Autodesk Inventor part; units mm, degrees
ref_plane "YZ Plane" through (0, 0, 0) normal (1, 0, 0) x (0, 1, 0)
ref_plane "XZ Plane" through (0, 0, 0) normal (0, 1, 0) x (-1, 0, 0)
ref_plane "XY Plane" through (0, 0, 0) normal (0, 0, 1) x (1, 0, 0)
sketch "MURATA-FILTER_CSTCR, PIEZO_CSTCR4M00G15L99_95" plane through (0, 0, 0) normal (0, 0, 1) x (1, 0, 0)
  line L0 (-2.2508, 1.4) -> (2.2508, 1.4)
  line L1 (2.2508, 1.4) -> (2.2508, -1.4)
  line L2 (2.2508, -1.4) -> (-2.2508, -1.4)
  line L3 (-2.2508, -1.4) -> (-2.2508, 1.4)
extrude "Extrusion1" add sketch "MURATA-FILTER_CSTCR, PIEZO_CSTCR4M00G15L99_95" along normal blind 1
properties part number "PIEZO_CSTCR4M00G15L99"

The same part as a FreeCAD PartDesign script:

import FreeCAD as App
import Part
import Sketcher

V = App.Vector
Q = App.Units.Quantity


def add_polygon(sketch, points):
    """Adds a closed chain of lines whose ends are joined by coincident constraints."""
    first, n = sketch.GeometryCount, len(points)
    for a, b in zip(points, points[1:] + points[:1]):
        sketch.addGeometry(Part.LineSegment(App.Vector(*a, 0), App.Vector(*b, 0)), False)
    for i in range(n):
        sketch.addConstraint(Sketcher.Constraint("Coincident", first + i, 2, first + (i + 1) % n, 1))

doc = App.newDocument("Part")
body = doc.addObject("PartDesign::Body", "Body")

sketch1 = body.newObject("Sketcher::SketchObject", "Sketch")
sketch1.AttachmentSupport = (doc.getObject("XY_Plane"), [""])
sketch1.MapMode = "FlatFace"
add_polygon(sketch1, [(2.3, 1.4), (-2.3, 1.4), (-2.3, -1.4), (2.3, -1.4)])
sketch1.addConstraint([
    Sketcher.Constraint("Horizontal", 0),
    Sketcher.Constraint("Vertical", 1),
    Sketcher.Constraint("Horizontal", 2),
    Sketcher.Constraint("Vertical", 3),
    Sketcher.Constraint("Symmetric", 0, 2, 2, 2, -1, 1),
    Sketcher.Constraint("DistanceY", 1, 2, 1, 1, Q("2.8 mm")),
    Sketcher.Constraint("DistanceX", 0, 2, 0, 1, Q("4.5016 mm")),
])
pad1 = body.newObject("PartDesign::Pad", "Pad")
pad1.Profile = sketch1
pad1.Length = 1

doc.recompute()
